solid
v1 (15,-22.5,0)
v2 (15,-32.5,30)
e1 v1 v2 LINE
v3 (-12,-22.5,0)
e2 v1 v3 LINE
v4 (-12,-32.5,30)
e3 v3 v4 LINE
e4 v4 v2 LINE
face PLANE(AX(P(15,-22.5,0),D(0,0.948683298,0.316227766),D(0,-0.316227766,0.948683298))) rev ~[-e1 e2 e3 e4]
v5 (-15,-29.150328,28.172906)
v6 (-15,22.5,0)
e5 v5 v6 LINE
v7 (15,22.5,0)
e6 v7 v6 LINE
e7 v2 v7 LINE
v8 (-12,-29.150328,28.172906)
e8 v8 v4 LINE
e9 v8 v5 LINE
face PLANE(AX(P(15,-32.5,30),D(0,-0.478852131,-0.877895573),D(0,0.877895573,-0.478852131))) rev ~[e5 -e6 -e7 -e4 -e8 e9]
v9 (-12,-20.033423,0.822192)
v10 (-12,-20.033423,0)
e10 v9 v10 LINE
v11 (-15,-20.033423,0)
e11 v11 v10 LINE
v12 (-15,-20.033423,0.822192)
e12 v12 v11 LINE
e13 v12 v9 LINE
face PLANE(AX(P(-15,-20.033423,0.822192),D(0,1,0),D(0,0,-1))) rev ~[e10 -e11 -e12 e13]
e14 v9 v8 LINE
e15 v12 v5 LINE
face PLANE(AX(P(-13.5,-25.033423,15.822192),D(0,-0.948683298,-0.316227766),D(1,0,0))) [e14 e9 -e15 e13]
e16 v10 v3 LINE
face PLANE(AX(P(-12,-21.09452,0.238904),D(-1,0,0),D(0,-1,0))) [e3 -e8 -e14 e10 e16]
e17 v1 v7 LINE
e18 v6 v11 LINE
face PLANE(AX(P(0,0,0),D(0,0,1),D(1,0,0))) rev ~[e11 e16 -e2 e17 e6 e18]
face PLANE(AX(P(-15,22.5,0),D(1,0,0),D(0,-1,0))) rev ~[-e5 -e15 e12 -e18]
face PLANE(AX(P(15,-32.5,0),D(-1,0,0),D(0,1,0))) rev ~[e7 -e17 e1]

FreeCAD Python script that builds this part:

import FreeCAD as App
import Part
import Sketcher
from FreeCAD import Vector

doc = App.newDocument("Part")
body = doc.addObject("PartDesign::Body", "Body")

# Sketch on XY plane
sketch1 = body.newObject("Sketcher::SketchObject", "Sketch")
sketch1.AttachmentSupport = (doc.getObject("XY_Plane"), [""])
sketch1.MapMode = "FlatFace"
sketch1.addGeometry(Part.LineSegment(Vector(15, 22, 0), Vector(-15, 22, 0)), False)
sketch1.addGeometry(Part.LineSegment(Vector(-15, 22, 0), Vector(-15, -32, 0)), False)
sketch1.addGeometry(Part.LineSegment(Vector(-15, -32, 0), Vector(15, -32, 0)), False)
sketch1.addGeometry(Part.LineSegment(Vector(15, -32, 0), Vector(15, 22, 0)), False)
sketch1.addConstraint(Sketcher.Constraint("Coincident", 0, 2, 1, 1))
sketch1.addConstraint(Sketcher.Constraint("Coincident", 1, 2, 2, 1))
sketch1.addConstraint(Sketcher.Constraint("Coincident", 2, 2, 3, 1))
sketch1.addConstraint(Sketcher.Constraint("Coincident", 3, 2, 0, 1))
sketch1.addConstraint(Sketcher.Constraint("Horizontal", 0))
sketch1.addConstraint(Sketcher.Constraint("Vertical", 1))
sketch1.addConstraint(Sketcher.Constraint("Horizontal", 2))
sketch1.addConstraint(Sketcher.Constraint("Vertical", 3))
sketch1.addConstraint(Sketcher.Constraint("DistanceX", 0, 2, 0, 1, 30.0))
sketch1.addConstraint(Sketcher.Constraint("DistanceY", 1, 2, 1, 1, 55.0))
sketch1.addConstraint(Sketcher.Constraint("DistanceX", 0, 2, -1, 1, 15.0))
sketch1.addConstraint(Sketcher.Constraint("DistanceY", -1, 1, 0, 2, 22.5))
pad1 = body.newObject("PartDesign::Pad", "Pad")
pad1.Profile = sketch1
pad1.Length = 30

# Sketch on YZ plane
sketch2 = body.newObject("Sketcher::SketchObject", "Sketch001")
sketch2.AttachmentSupport = (doc.getObject("YZ_Plane"), [""])
sketch2.MapMode = "FlatFace"
sketch2.AttachmentOffset = App.Placement(Vector(0, 0, 15), App.Rotation())
sketch2.addGeometry(Part.LineSegment(Vector(-32, 0, 0), Vector(-22, 0, 0)), False)
sketch2.addGeometry(Part.LineSegment(Vector(-22, 0, 0), Vector(-32, 30, 0)), False)
sketch2.addGeometry(Part.LineSegment(Vector(-32, 30, 0), Vector(-32, 0, 0)), False)
sketch2.addGeometry(Part.LineSegment(Vector(22, 30, 0), Vector(-32, 30, 0)), False)
sketch2.addGeometry(Part.LineSegment(Vector(-32, 30, 0), Vector(22, 0, 0)), False)
sketch2.addGeometry(Part.LineSegment(Vector(22, 0, 0), Vector(22, 30, 0)), False)
sketch2.addConstraint(Sketcher.Constraint("Coincident", 0, 2, 1, 1))
sketch2.addConstraint(Sketcher.Constraint("Coincident", 1, 2, 2, 1))
sketch2.addConstraint(Sketcher.Constraint("Coincident", 2, 2, 0, 1))
sketch2.addConstraint(Sketcher.Constraint("Coincident", 3, 2, 4, 1))
sketch2.addConstraint(Sketcher.Constraint("Coincident", 4, 2, 5, 1))
sketch2.addConstraint(Sketcher.Constraint("Coincident", 5, 2, 3, 1))
sketch2.addConstraint(Sketcher.Constraint("Horizontal", 0))
sketch2.addConstraint(Sketcher.Constraint("Vertical", 2))
sketch2.addConstraint(Sketcher.Constraint("Horizontal", 3))
sketch2.addConstraint(Sketcher.Constraint("Vertical", 5))
sketch2.addConstraint(Sketcher.Constraint("Coincident", 3, 2, 1, 2))
sketch2.addConstraint(Sketcher.Constraint("Symmetric", 0, 2, 4, 2, -1, 1))
sketch2.addConstraint(Sketcher.Constraint("PointOnObject", 0, 2, -1))
sketch2.addConstraint(Sketcher.Constraint("DistanceX", 0, 1, 0, 2, 10.0))
sketch2.addConstraint(Sketcher.Constraint("DistanceX", 3, 2, 3, 1, 55.0))
sketch2.addConstraint(Sketcher.Constraint("DistanceY", 2, 2, 2, 1, 30.0))
pocket1 = body.newObject("PartDesign::Pocket", "Pocket")
pocket1.Profile = sketch2
pocket1.Type = "ThroughAll"

# Sketch on an angled plane
sketch3 = body.newObject("Sketcher::SketchObject", "Sketch002")
sketch3.Placement = App.Placement(Vector(0, -20.25, -6.75), App.Rotation(Vector(1, 0, 0), Vector(0, -0.316227766, 0.948683298), Vector(0, -0.948683298, -0.316227766), "ZXY"))
sketch3.addGeometry(Part.LineSegment(Vector(-15, 38.7, 0), Vector(-15, 7.1, 0)), False)
sketch3.addGeometry(Part.LineSegment(Vector(-15, 7.1, 0), Vector(-12, 7.1, 0)), False)
sketch3.addGeometry(Part.LineSegment(Vector(-12, 7.1, 0), Vector(-12, 38.7, 0)), False)
sketch3.addGeometry(Part.LineSegment(Vector(-12, 38.7, 0), Vector(-15, 38.7, 0)), False)
sketch3.addConstraint(Sketcher.Constraint("Coincident", 0, 2, 1, 1))
sketch3.addConstraint(Sketcher.Constraint("Coincident", 1, 2, 2, 1))
sketch3.addConstraint(Sketcher.Constraint("Coincident", 2, 2, 3, 1))
sketch3.addConstraint(Sketcher.Constraint("Coincident", 3, 2, 0, 1))
sketch3.addConstraint(Sketcher.Constraint("Vertical", 0))
sketch3.addConstraint(Sketcher.Constraint("Horizontal", 1))
sketch3.addConstraint(Sketcher.Constraint("Vertical", 2))
sketch3.addConstraint(Sketcher.Constraint("Horizontal", 3))
sketch3.addConstraint(Sketcher.Constraint("DistanceX", 1, 1, 1, 2, 3.0))
sketch3.addConstraint(Sketcher.Constraint("DistanceX", 0, 2, -1, 1, 15.0))
sketch3.addConstraint(Sketcher.Constraint("DistanceY", -1, 1, 2, 2, 38.737901))
sketch3.addConstraint(Sketcher.Constraint("DistanceY", 0, 2, 0, 1, 31.622777))
pocket2 = body.newObject("PartDesign::Pocket", "Pocket001")
pocket2.Profile = sketch3
pocket2.Length = 2.6

# Sketch on YZ plane
sketch4 = body.newObject("Sketcher::SketchObject", "Sketch003")
sketch4.AttachmentSupport = (doc.getObject("YZ_Plane"), [""])
sketch4.MapMode = "FlatFace"
sketch4.AttachmentOffset = App.Placement(Vector(0, 0, -15), App.Rotation())
sketch4.addGeometry(Part.LineSegment(Vector(-22.5, 0, 0), Vector(-20, 0.8, 0)), False)
sketch4.addGeometry(Part.LineSegment(Vector(-20, 0.8, 0), Vector(-20, 0, 0)), False)
sketch4.addGeometry(Part.LineSegment(Vector(-20, 0, 0), Vector(-22.5, 0, 0)), False)
sketch4.addConstraint(Sketcher.Constraint("Coincident", 0, 2, 1, 1))
sketch4.addConstraint(Sketcher.Constraint("Coincident", 1, 2, 2, 1))
sketch4.addConstraint(Sketcher.Constraint("Coincident", 2, 2, 0, 1))
sketch4.addConstraint(Sketcher.Constraint("Vertical", 1))
sketch4.addConstraint(Sketcher.Constraint("Horizontal", 2))
sketch4.addConstraint(Sketcher.Constraint("PointOnObject", 1, 2, -1))
sketch4.addConstraint(Sketcher.Constraint("Distance", 0, 2.6))
sketch4.addConstraint(Sketcher.Constraint("DistanceX", 2, 2, -1, 1, 22.5))
sketch4.addConstraint(Sketcher.Constraint("DistanceX", 2, 2, 2, 1, 2.466577))
pocket3 = body.newObject("PartDesign::Pocket", "Pocket002")
pocket3.Profile = sketch4
pocket3.Length = 3
pocket3.Reversed = True

doc.recompute()
